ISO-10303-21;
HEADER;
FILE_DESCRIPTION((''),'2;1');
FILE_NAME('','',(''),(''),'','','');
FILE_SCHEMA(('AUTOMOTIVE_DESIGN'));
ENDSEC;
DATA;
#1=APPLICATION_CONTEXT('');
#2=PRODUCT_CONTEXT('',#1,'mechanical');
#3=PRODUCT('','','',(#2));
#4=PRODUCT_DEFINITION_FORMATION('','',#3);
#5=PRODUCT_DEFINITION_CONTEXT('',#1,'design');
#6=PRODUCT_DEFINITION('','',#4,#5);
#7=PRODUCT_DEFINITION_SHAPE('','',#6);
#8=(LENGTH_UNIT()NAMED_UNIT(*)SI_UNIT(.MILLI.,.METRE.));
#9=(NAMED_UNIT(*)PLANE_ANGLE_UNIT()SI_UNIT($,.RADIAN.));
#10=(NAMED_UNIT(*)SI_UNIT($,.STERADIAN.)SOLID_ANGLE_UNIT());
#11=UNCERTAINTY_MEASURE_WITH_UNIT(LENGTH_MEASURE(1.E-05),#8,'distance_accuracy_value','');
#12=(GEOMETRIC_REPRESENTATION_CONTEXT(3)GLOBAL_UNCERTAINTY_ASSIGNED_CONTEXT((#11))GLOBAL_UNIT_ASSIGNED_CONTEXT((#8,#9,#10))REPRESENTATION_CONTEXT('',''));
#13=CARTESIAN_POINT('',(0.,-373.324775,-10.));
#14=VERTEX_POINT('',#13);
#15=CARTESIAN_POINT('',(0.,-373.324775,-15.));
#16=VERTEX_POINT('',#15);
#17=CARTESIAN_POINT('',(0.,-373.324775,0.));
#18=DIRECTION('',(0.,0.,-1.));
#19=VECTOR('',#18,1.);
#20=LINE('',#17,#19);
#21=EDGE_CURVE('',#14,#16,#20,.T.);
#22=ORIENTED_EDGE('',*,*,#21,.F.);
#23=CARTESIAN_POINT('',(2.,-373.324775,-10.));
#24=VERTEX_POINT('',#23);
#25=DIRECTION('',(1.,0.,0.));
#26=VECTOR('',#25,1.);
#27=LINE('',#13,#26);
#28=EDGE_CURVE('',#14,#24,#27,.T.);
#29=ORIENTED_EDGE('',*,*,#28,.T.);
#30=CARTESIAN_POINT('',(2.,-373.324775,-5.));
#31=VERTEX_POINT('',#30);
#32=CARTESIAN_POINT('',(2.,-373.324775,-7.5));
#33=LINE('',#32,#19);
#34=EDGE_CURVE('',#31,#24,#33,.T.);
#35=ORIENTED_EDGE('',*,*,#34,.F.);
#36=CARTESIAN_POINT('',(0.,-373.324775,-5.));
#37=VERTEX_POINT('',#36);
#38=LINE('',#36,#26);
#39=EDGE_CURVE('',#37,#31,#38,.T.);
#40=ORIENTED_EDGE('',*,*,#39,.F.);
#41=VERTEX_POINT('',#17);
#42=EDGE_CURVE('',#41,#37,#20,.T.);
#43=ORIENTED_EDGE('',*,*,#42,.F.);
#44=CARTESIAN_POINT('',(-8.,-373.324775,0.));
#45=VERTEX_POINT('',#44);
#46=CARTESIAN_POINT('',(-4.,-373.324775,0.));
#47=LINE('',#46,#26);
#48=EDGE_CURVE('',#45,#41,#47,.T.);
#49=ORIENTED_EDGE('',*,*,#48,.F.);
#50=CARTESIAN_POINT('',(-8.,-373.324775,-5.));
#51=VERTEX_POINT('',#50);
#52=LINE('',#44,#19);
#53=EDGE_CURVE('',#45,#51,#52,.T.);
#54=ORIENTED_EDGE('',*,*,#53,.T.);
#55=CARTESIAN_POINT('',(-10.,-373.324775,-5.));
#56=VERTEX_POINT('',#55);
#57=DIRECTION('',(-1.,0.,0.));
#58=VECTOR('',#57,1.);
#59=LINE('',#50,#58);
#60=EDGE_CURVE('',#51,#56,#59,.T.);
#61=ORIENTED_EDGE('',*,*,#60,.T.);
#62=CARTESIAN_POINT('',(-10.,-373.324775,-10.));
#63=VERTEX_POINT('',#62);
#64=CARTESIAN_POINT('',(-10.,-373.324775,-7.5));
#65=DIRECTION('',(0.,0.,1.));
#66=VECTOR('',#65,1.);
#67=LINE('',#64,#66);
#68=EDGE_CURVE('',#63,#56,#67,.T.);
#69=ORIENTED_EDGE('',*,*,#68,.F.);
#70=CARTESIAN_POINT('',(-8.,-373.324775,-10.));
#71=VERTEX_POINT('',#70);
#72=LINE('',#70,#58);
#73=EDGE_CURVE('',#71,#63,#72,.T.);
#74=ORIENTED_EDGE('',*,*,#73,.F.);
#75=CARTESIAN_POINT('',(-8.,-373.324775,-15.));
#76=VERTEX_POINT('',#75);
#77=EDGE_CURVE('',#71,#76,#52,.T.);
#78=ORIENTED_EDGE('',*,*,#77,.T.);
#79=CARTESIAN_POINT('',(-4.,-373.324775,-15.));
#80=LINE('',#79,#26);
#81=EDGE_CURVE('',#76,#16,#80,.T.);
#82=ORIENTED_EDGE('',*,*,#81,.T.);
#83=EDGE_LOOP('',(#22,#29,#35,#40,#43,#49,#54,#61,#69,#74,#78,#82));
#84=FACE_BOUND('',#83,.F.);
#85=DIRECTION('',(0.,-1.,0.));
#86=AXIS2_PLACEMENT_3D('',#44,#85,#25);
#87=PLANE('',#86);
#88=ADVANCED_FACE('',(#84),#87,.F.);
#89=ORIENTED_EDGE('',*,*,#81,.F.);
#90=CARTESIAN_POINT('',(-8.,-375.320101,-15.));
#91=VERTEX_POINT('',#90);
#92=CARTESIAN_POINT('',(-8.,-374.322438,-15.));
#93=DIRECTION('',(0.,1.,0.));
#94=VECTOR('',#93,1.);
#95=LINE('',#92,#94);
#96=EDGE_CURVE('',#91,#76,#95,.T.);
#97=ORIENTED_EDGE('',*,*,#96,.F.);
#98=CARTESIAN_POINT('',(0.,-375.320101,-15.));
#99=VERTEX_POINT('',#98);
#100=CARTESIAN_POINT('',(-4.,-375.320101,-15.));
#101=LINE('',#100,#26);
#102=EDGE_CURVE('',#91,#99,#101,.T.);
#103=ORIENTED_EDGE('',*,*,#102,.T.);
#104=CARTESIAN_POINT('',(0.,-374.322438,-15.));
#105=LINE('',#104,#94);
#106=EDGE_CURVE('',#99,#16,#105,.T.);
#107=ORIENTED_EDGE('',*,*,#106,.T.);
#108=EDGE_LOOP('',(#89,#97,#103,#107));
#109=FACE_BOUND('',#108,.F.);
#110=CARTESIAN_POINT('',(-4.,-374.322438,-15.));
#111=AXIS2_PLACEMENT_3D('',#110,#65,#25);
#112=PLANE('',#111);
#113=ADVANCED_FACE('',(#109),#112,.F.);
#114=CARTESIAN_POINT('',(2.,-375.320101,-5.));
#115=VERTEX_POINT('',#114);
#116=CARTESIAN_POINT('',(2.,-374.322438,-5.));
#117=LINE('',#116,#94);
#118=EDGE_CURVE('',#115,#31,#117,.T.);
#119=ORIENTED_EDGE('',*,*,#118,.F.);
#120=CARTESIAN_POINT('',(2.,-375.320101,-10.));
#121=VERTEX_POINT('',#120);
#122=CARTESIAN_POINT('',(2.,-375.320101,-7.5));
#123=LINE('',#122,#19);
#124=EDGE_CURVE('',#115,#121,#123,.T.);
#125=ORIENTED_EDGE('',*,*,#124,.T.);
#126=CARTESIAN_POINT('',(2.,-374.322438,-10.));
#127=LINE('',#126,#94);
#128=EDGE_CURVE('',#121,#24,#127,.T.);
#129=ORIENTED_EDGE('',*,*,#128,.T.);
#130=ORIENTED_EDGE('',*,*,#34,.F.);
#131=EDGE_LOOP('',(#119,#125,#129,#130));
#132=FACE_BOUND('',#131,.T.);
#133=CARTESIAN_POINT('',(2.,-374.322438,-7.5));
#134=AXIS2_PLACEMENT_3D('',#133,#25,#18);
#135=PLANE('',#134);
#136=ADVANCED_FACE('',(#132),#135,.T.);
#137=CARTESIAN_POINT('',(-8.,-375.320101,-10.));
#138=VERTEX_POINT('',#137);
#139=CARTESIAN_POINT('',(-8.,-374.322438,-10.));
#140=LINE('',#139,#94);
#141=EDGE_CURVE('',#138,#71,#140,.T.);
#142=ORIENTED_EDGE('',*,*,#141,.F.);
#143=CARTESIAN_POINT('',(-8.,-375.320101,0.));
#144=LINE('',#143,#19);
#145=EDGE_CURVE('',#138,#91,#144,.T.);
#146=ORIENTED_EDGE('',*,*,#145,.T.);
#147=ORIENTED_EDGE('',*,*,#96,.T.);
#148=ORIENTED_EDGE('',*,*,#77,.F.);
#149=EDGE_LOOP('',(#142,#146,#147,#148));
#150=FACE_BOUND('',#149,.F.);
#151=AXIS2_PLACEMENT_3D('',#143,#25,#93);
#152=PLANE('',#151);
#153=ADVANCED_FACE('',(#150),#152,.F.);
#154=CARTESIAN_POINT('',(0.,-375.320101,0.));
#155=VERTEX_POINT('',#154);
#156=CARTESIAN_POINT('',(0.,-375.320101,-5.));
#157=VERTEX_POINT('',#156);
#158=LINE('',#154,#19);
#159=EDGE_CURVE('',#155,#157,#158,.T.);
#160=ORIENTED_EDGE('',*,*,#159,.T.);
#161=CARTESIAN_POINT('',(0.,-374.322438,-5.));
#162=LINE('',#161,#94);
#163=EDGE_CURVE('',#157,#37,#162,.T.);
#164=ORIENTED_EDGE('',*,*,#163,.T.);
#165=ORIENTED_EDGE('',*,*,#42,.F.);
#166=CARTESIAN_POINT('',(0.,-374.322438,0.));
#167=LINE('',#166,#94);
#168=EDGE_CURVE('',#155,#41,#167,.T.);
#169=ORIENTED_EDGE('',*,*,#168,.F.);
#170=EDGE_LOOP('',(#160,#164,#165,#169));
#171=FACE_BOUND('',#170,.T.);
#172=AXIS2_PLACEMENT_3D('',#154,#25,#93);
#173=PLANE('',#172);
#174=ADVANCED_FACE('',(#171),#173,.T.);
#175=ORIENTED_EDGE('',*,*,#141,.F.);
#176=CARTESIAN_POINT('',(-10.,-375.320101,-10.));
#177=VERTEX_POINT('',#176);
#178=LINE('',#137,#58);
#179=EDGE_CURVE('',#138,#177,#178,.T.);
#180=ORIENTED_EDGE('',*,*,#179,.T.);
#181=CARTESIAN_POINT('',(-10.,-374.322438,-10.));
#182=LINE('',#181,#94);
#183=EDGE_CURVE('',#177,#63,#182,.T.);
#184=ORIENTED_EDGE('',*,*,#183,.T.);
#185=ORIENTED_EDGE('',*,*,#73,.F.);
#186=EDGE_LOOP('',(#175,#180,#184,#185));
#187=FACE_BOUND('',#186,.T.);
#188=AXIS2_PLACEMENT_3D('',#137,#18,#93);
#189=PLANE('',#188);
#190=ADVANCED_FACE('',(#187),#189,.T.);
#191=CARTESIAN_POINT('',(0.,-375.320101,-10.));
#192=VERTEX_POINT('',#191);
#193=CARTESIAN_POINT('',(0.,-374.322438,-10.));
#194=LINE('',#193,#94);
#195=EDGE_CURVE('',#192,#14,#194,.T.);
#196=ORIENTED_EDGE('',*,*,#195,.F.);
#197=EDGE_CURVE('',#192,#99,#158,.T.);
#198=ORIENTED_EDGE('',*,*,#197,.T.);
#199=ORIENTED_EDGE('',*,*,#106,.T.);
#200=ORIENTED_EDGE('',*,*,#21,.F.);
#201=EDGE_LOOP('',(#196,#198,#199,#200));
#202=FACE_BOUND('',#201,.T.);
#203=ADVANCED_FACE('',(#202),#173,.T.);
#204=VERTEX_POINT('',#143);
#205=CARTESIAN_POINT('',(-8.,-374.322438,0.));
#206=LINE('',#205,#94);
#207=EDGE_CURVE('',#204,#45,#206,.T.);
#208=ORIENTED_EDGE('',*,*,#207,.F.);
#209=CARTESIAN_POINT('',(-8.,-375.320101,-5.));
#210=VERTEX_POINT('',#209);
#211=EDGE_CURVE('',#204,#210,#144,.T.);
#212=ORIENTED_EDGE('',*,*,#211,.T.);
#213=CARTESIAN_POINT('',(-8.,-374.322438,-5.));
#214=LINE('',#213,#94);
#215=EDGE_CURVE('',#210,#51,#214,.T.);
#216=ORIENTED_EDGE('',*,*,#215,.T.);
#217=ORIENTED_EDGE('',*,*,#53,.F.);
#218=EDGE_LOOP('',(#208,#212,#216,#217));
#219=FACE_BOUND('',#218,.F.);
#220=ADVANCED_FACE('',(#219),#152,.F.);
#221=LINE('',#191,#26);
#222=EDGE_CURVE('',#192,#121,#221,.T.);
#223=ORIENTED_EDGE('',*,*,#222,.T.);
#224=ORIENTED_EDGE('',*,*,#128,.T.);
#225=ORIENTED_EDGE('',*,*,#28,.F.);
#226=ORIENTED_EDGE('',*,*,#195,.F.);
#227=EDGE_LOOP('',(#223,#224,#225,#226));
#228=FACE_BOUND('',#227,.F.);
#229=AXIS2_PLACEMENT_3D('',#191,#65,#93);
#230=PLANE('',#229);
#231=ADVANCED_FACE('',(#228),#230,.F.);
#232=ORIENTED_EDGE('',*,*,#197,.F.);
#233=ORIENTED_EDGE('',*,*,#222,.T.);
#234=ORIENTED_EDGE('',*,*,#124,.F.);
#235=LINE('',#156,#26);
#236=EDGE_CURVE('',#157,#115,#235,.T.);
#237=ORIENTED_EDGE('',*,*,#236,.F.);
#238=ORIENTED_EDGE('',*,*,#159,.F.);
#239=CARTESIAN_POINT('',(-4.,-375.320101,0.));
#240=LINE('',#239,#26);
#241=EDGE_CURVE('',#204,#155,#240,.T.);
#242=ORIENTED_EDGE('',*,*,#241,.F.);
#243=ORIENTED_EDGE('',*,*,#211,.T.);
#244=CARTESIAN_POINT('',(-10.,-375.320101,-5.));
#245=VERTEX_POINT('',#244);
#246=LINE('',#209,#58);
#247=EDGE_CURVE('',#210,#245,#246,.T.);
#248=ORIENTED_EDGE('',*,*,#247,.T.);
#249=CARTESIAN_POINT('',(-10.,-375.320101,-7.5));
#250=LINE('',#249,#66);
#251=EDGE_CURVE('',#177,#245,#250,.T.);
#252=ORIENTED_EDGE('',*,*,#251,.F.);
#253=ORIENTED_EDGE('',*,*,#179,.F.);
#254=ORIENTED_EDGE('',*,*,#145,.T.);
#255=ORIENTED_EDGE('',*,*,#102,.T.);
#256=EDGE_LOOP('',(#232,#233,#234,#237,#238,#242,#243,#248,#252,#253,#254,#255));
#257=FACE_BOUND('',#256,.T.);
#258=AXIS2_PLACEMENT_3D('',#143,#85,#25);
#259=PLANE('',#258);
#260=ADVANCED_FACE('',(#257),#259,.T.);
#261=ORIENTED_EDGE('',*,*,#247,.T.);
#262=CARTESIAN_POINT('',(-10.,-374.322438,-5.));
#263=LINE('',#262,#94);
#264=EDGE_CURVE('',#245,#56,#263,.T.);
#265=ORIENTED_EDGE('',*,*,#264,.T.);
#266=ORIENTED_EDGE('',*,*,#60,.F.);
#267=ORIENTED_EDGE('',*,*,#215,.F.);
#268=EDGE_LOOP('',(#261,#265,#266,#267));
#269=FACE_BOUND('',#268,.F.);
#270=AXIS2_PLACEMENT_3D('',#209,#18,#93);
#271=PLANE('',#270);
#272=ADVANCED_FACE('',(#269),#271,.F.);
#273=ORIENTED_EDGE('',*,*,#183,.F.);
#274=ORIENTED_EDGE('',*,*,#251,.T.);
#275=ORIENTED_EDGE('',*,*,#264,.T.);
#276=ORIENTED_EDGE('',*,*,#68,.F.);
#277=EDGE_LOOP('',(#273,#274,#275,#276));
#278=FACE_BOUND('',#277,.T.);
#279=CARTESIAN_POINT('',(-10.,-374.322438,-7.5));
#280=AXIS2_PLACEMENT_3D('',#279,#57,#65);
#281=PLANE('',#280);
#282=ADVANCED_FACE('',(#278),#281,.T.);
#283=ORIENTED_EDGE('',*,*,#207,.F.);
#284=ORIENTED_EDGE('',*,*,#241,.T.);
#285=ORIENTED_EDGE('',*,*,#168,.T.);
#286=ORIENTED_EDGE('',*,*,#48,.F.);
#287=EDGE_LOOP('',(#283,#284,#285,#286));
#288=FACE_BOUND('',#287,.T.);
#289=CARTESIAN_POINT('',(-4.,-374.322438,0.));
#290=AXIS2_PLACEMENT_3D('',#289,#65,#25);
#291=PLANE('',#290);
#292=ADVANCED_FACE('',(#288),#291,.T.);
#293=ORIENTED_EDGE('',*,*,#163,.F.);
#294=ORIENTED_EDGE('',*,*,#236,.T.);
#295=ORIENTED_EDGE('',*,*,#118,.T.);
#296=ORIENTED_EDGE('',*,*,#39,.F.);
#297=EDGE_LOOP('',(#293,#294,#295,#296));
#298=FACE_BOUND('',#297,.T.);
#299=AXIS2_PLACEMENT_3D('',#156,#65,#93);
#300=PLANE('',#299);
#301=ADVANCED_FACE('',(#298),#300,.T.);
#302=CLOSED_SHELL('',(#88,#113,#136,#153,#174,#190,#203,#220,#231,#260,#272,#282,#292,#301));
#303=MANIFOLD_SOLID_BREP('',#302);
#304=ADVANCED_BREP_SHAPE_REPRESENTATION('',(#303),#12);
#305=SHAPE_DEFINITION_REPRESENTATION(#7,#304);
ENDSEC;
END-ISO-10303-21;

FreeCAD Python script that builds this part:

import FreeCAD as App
import Part
import Sketcher
from FreeCAD import Vector


def add_polygon(sketch, points):
    """Adds a closed chain of lines whose ends are joined by coincident constraints."""
    first, n = sketch.GeometryCount, len(points)
    for a, b in zip(points, points[1:] + points[:1]):
        sketch.addGeometry(Part.LineSegment(App.Vector(*a, 0), App.Vector(*b, 0)), False)
    for i in range(n):
        sketch.addConstraint(Sketcher.Constraint("Coincident", first + i, 2, first + (i + 1) % n, 1))

doc = App.newDocument("Part")
body = doc.addObject("PartDesign::Body", "Body")

# Sketch on XY plane
sketch1 = body.newObject("Sketcher::SketchObject", "Sketch")
sketch1.AttachmentSupport = (doc.getObject("XY_Plane"), [""])
sketch1.MapMode = "FlatFace"
add_polygon(sketch1, [(-8, -373.3), (-8, -375.3), (0, -375.3), (0, -373.3)])  # lines 0-3
sketch1.addConstraint([
    Sketcher.Constraint("Vertical", 0),
    Sketcher.Constraint("Horizontal", 1),
    Sketcher.Constraint("Vertical", 2),
    Sketcher.Constraint("Horizontal", 3),
    Sketcher.Constraint("PointOnObject", 1, 2, -2),
    Sketcher.Constraint("DistanceX", 1, 1, 1, 2, 8.0),
    Sketcher.Constraint("DistanceY", 0, 2, -1, 1, 375.320101),
    Sketcher.Constraint("DistanceY", 0, 2, 0, 1, 1.995326),
])
pad1 = body.newObject("PartDesign::Pad", "Pad")
pad1.Profile = sketch1
pad1.Length = 15
pad1.Reversed = True

# Sketch on YZ plane
sketch2 = body.newObject("Sketcher::SketchObject", "Sketch001")
sketch2.AttachmentSupport = (doc.getObject("YZ_Plane"), [""])
sketch2.MapMode = "FlatFace"
sketch2.AttachmentOffset = App.Placement(Vector(0, 0, -8), App.Rotation())
add_polygon(sketch2, [(-373.3, -10), (-375.3, -10), (-375.3, -5), (-373.3, -5)])  # lines 0-3
sketch2.addConstraint([
    Sketcher.Constraint("Horizontal", 0),
    Sketcher.Constraint("Vertical", 1),
    Sketcher.Constraint("Horizontal", 2),
    Sketcher.Constraint("Vertical", 3),
    Sketcher.Constraint("DistanceY", 1, 1, 1, 2, 5.0),
    Sketcher.Constraint("DistanceY", 0, 2, -1, 1, 10.0),
    Sketcher.Constraint("DistanceX", 0, 2, -1, 1, 375.320101),
    Sketcher.Constraint("DistanceX", 0, 2, 0, 1, 1.995326),
])
pad2 = body.newObject("PartDesign::Pad", "Pad001")
pad2.Profile = sketch2
pad2.Length = 2
pad2.Reversed = True

# Sketch on YZ plane
sketch3 = body.newObject("Sketcher::SketchObject", "Sketch002")
sketch3.AttachmentSupport = (doc.getObject("YZ_Plane"), [""])
sketch3.MapMode = "FlatFace"
add_polygon(sketch3, [(-373.3, -5), (-375.3, -5), (-375.3, -10), (-373.3, -10)])  # lines 0-3
sketch3.addConstraint([
    Sketcher.Constraint("Horizontal", 0),
    Sketcher.Constraint("Vertical", 1),
    Sketcher.Constraint("Horizontal", 2),
    Sketcher.Constraint("Vertical", 3),
    Sketcher.Constraint("DistanceY", 1, 2, 1, 1, 5.0),
    Sketcher.Constraint("DistanceY", 0, 2, -1, 1, 5.0),
    Sketcher.Constraint("DistanceX", 0, 2, -1, 1, 375.320101),
    Sketcher.Constraint("DistanceX", 0, 2, 0, 1, 1.995326),
])
pad3 = body.newObject("PartDesign::Pad", "Pad002")
pad3.Profile = sketch3
pad3.Length = 2

doc.recompute()
